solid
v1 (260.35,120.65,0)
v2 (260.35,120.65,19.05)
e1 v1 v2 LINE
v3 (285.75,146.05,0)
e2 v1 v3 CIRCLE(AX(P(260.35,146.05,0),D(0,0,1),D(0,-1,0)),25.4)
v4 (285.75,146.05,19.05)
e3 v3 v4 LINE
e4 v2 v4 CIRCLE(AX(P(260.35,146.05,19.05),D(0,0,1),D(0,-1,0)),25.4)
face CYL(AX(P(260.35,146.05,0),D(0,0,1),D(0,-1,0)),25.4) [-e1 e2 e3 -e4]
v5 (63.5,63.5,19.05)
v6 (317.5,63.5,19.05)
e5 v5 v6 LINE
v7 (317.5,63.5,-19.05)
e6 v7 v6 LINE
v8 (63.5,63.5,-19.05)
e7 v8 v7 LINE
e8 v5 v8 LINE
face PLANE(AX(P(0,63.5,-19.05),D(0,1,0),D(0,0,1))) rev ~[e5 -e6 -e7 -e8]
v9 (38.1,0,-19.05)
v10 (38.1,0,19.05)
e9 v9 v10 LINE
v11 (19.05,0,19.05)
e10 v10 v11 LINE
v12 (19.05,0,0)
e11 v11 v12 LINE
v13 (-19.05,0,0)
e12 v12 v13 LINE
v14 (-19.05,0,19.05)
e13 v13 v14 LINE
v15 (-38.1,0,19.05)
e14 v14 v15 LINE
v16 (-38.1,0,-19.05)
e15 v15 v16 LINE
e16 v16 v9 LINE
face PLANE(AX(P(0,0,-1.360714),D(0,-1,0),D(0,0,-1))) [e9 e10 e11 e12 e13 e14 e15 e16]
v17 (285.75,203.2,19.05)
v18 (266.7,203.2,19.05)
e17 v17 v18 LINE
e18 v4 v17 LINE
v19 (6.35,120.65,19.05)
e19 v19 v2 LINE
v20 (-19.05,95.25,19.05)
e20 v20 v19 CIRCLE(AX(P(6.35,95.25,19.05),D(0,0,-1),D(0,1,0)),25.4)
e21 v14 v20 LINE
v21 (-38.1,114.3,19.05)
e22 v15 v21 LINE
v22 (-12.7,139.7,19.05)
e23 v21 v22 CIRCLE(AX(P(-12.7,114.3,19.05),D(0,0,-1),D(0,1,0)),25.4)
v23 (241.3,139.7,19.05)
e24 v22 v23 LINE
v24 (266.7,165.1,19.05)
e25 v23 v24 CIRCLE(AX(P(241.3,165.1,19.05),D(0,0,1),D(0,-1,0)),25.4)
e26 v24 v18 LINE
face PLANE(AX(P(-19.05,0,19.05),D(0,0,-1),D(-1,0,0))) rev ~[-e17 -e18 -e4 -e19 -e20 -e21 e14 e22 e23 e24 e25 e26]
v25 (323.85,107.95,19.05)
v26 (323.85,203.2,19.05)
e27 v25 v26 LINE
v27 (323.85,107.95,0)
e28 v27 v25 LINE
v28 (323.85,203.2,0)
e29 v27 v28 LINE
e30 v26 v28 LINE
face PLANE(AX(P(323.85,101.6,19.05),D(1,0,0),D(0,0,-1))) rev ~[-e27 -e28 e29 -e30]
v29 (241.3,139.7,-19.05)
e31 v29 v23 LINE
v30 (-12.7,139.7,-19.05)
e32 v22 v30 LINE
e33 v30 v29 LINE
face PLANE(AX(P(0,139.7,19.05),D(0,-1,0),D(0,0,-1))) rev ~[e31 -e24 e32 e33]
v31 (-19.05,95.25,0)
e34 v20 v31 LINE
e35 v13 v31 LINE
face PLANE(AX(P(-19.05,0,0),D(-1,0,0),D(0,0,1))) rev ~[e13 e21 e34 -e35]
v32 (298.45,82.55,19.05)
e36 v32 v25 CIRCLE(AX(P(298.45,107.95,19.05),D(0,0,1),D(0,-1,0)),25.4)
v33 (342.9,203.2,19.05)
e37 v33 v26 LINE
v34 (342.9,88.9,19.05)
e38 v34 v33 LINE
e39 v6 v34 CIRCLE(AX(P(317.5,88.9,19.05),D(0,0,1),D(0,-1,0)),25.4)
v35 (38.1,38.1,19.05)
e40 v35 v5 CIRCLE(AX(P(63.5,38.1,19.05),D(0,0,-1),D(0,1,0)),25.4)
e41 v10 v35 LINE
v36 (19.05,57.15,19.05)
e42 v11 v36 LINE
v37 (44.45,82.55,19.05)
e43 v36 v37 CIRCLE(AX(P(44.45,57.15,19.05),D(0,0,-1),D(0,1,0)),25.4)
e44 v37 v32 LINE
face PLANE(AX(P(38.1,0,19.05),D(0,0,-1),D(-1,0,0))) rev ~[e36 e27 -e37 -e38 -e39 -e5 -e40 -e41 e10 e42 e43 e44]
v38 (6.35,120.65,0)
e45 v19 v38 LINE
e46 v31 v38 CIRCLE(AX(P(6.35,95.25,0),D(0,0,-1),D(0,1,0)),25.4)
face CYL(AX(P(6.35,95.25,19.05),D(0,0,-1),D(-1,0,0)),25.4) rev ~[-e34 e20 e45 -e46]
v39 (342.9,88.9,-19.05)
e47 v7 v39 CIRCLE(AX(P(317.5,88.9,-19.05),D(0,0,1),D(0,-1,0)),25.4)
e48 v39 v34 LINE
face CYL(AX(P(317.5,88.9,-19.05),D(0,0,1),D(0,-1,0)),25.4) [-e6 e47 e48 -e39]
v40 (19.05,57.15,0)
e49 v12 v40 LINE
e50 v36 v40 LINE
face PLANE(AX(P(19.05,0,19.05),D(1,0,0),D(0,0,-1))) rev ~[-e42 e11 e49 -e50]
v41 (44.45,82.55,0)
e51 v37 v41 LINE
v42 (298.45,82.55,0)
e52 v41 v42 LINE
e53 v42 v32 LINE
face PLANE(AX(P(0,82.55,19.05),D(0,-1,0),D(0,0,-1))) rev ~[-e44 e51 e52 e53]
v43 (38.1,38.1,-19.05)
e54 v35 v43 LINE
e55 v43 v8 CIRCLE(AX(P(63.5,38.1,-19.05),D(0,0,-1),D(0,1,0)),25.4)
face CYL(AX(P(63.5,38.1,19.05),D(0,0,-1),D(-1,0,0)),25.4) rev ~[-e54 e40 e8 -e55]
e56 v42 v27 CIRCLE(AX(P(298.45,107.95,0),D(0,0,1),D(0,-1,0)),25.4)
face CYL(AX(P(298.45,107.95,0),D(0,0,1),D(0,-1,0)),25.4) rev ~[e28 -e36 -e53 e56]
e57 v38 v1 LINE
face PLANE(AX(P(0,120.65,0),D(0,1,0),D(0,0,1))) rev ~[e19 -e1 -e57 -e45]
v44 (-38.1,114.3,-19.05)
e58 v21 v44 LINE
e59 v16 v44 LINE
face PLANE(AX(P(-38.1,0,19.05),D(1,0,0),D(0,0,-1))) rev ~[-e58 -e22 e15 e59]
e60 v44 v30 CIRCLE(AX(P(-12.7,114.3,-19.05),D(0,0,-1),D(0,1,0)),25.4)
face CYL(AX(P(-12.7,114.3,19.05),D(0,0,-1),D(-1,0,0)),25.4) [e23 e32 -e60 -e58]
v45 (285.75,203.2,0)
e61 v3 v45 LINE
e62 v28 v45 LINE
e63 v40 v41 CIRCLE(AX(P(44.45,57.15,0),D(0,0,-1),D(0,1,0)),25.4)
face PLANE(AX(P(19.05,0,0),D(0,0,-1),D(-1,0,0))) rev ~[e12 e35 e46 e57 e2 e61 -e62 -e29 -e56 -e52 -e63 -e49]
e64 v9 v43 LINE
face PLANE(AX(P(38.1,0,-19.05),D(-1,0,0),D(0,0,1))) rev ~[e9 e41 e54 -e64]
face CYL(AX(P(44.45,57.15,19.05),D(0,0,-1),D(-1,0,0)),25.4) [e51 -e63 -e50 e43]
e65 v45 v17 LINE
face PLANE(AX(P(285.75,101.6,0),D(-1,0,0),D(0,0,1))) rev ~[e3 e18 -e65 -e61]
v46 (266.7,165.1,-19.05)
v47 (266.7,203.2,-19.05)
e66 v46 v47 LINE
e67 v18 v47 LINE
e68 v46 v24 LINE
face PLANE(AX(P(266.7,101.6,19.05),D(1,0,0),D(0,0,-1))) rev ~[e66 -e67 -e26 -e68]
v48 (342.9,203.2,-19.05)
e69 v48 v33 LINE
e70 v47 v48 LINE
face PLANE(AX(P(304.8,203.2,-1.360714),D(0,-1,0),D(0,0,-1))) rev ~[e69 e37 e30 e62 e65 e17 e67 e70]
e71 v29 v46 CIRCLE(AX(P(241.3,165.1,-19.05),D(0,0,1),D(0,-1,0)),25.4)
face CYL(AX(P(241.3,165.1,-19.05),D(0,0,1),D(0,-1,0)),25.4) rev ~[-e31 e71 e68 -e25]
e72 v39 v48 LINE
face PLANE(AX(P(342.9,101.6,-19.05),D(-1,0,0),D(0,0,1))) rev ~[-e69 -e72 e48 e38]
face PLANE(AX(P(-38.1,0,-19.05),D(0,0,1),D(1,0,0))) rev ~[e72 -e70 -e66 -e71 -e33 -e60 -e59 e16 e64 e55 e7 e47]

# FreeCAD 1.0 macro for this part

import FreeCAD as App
import Part
import Sketcher
Q = App.Units.Quantity


def edges_at(feature, points):
    """Names of the edges that pass closest to the given points."""
    edges = feature.Shape.Edges
    near = lambda p: min(range(len(edges)), key=lambda i: edges[i].distToShape(Part.Vertex(*p))[0])
    return sorted({f"Edge{near(p) + 1}" for p in points})

doc = App.newDocument("Part")
body = doc.addObject("PartDesign::Body", "Body")

# Sketch on XZ plane
sketch1 = doc.addObject("Sketcher::SketchObject", "Sketch")
body.addObject(sketch1)
sketch1.AttachmentSupport = (doc.XZ_Plane, [""])
sketch1.MapMode = "FlatFace"
sketch1.addGeometry(Part.LineSegment(App.Vector(-19.05, 19.05, 0), App.Vector(-38.1, 19.05, 0)), False)
sketch1.addGeometry(Part.LineSegment(App.Vector(-38.1, 19.05, 0), App.Vector(-38.1, -19.05, 0)), False)
sketch1.addGeometry(Part.LineSegment(App.Vector(-38.1, -19.05, 0), App.Vector(38.1, -19.05, 0)), False)
sketch1.addGeometry(Part.LineSegment(App.Vector(38.1, -19.05, 0), App.Vector(38.1, 19.05, 0)), False)
sketch1.addGeometry(Part.LineSegment(App.Vector(38.1, 19.05, 0), App.Vector(19.05, 19.05, 0)), False)
sketch1.addGeometry(Part.LineSegment(App.Vector(19.05, 19.05, 0), App.Vector(19.05, 0, 0)), False)
sketch1.addGeometry(Part.LineSegment(App.Vector(19.05, 0, 0), App.Vector(-19.05, 0, 0)), False)
sketch1.addGeometry(Part.LineSegment(App.Vector(-19.05, 0, 0), App.Vector(-19.05, 19.05, 0)), False)
sketch1.addConstraint(Sketcher.Constraint("Coincident", 0, 2, 1, 1))
sketch1.addConstraint(Sketcher.Constraint("Coincident", 1, 2, 2, 1))
sketch1.addConstraint(Sketcher.Constraint("Coincident", 2, 2, 3, 1))
sketch1.addConstraint(Sketcher.Constraint("Coincident", 3, 2, 4, 1))
sketch1.addConstraint(Sketcher.Constraint("Coincident", 4, 2, 5, 1))
sketch1.addConstraint(Sketcher.Constraint("Coincident", 5, 2, 6, 1))
sketch1.addConstraint(Sketcher.Constraint("Coincident", 6, 2, 7, 1))
sketch1.addConstraint(Sketcher.Constraint("Coincident", 7, 2, 0, 1))
sketch1.addConstraint(Sketcher.Constraint("Horizontal", 0))
sketch1.addConstraint(Sketcher.Constraint("Vertical", 1))
sketch1.addConstraint(Sketcher.Constraint("Horizontal", 2))
sketch1.addConstraint(Sketcher.Constraint("Vertical", 3))
sketch1.addConstraint(Sketcher.Constraint("Horizontal", 4))
sketch1.addConstraint(Sketcher.Constraint("Vertical", 5))
sketch1.addConstraint(Sketcher.Constraint("Horizontal", 6))
sketch1.addConstraint(Sketcher.Constraint("Vertical", 7))
sketch1.addConstraint(Sketcher.Constraint("Symmetric", 0, 2, 2, 2, -1, 1))
sketch1.addConstraint(Sketcher.Constraint("Symmetric", 5, 2, 6, 2, -1, 1))
sketch1.addConstraint(Sketcher.Constraint("Horizontal", 0, 2, 3, 2))
sketch1.addConstraint(Sketcher.Constraint("Equal", 6, 1))
sketch1.addConstraint(Sketcher.Constraint("Equal", 4, 5))
sketch1.addConstraint(Sketcher.Constraint("DistanceX", 2, 1, 2, 2, Q("3 in")))

# Sketch on XY plane
sketch2 = doc.addObject("Sketcher::SketchObject", "Sketch001")
body.addObject(sketch2)
sketch2.AttachmentSupport = (doc.XY_Plane, [""])
sketch2.MapMode = "FlatFace"
sketch2.addGeometry(Part.LineSegment(App.Vector(0, 0, 0), App.Vector(0, 101.6, 0)), False)
sketch2.addGeometry(Part.LineSegment(App.Vector(0, 101.6, 0), App.Vector(304.8, 101.6, 0)), False)
sketch2.addGeometry(Part.LineSegment(App.Vector(304.8, 101.6, 0), App.Vector(304.8, 203.2, 0)), False)
sketch2.addConstraint(Sketcher.Constraint("Coincident", 0, 2, 1, 1))
sketch2.addConstraint(Sketcher.Constraint("Coincident", 1, 2, 2, 1))
sketch2.addConstraint(Sketcher.Constraint("Vertical", 0))
sketch2.addConstraint(Sketcher.Constraint("Horizontal", 1))
sketch2.addConstraint(Sketcher.Constraint("Vertical", 2))
sketch2.addConstraint(Sketcher.Constraint("Coincident", 0, 1, -1, 1))
sketch2.addConstraint(Sketcher.Constraint("Equal", 0, 2))
sketch2.addConstraint(Sketcher.Constraint("DistanceX", 1, 1, 1, 2, Q("12 in")))
sketch2.addConstraint(Sketcher.Constraint("DistanceY", 0, 1, 0, 2, Q("4 in")))
doc.recompute()

additivepipe = doc.addObject("PartDesign::AdditivePipe", "AdditivePipe")
body.addObject(additivepipe)
additivepipe.Profile = sketch1
additivepipe.Spine = (sketch2, ["Edge1", "Edge2", "Edge3"])
additivepipe.Transition = "Right corner"
doc.recompute()

fillet = doc.addObject("PartDesign::Fillet", "Fillet")
body.addObject(fillet)
fillet.Base = (additivepipe, edges_at(additivepipe, [
    (342.9, 63.5, 0),
    (38.1, 63.5, 0),
    (-38.1, 139.7, 0),
    (266.7, 139.7, 0),
    (-19.05, 120.65, 9.525),
    (285.75, 120.65, 9.525),
    (19.05, 82.55, 9.525),
    (323.85, 82.55, 9.525),
]))
fillet.Radius = Q("1 in")

doc.recompute()
